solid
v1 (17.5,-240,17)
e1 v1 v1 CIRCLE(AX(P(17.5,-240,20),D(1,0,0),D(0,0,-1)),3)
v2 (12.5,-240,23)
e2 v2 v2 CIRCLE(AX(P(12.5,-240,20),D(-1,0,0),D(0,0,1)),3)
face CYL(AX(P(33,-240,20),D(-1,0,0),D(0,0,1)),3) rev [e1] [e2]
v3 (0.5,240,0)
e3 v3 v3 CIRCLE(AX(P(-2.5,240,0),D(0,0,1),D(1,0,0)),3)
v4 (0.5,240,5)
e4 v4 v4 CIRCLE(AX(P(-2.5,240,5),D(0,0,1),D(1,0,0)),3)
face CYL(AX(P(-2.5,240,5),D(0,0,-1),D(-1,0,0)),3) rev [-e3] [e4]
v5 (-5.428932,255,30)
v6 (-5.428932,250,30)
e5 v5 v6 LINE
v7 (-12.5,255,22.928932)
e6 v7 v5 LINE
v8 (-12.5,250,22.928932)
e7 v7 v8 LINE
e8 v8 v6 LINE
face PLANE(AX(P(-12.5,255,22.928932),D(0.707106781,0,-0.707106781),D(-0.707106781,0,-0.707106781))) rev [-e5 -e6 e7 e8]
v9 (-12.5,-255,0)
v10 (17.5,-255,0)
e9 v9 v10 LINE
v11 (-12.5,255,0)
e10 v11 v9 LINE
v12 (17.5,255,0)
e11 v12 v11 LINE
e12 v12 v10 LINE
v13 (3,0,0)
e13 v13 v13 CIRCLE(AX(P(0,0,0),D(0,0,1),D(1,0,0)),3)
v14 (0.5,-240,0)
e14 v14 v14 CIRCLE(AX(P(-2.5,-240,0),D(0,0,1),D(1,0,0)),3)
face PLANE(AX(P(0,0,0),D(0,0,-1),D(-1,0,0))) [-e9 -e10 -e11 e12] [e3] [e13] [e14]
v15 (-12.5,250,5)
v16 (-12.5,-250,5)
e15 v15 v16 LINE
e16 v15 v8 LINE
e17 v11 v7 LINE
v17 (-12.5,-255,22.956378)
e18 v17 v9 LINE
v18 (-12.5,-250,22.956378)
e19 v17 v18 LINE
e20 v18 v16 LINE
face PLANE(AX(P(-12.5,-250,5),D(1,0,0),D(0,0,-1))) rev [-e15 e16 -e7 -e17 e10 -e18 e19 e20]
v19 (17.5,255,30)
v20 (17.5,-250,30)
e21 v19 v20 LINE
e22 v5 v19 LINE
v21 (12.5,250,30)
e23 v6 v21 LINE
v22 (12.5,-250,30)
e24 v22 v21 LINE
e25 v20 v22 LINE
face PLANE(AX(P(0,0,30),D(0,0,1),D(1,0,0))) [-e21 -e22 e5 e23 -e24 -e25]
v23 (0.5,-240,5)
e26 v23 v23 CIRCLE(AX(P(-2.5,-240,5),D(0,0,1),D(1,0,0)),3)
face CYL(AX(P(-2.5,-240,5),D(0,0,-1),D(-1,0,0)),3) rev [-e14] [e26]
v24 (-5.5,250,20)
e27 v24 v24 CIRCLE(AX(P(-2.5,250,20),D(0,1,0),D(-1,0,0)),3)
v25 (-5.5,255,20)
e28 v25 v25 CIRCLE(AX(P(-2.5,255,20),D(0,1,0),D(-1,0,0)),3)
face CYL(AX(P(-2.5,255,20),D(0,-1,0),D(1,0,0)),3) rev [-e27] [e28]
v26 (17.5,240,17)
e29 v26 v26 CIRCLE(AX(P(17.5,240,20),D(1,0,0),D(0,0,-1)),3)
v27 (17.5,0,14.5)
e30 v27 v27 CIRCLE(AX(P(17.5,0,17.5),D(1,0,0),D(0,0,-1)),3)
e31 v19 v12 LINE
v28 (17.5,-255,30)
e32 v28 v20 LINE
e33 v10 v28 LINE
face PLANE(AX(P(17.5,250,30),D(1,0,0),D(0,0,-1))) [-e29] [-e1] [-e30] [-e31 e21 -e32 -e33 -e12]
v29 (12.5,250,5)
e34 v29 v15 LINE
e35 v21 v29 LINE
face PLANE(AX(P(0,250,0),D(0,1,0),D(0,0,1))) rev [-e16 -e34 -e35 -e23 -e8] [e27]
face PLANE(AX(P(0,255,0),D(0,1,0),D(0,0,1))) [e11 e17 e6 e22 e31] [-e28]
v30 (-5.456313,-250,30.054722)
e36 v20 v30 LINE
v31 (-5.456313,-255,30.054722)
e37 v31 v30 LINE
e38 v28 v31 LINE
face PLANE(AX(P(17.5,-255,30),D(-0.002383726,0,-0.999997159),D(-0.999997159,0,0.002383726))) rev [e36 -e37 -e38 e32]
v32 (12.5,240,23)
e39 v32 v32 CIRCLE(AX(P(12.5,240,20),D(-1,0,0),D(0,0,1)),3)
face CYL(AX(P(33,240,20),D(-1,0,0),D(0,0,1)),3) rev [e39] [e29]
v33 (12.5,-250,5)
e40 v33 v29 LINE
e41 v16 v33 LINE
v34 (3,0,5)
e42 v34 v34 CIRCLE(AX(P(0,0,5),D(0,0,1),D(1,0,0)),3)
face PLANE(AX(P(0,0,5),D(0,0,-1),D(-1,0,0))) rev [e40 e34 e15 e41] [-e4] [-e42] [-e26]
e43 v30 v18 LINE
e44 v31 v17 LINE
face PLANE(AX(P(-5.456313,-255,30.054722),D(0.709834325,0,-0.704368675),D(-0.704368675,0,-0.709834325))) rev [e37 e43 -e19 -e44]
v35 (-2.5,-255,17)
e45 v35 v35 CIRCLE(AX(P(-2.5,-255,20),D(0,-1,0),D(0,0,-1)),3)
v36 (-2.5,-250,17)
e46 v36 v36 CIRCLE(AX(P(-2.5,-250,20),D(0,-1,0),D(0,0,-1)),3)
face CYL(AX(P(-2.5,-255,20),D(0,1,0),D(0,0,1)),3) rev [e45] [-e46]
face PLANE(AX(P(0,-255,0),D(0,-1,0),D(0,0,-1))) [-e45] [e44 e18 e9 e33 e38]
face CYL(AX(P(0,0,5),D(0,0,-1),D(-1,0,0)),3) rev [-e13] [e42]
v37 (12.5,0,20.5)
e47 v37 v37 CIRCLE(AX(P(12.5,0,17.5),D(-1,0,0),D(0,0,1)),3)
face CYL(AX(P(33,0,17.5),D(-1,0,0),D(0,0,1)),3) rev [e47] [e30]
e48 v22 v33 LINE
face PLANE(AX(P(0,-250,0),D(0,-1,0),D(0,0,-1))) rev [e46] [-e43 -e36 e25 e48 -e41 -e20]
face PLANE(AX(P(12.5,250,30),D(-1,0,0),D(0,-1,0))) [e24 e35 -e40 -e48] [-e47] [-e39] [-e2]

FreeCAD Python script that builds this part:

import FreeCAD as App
import Part
import Sketcher

V = App.Vector


def add_polygon(sketch, points):
    """Adds a closed chain of lines whose ends are joined by coincident constraints."""
    first, n = sketch.GeometryCount, len(points)
    for a, b in zip(points, points[1:] + points[:1]):
        sketch.addGeometry(Part.LineSegment(App.Vector(*a, 0), App.Vector(*b, 0)), False)
    for i in range(n):
        sketch.addConstraint(Sketcher.Constraint("Coincident", first + i, 2, first + (i + 1) % n, 1))

doc = App.newDocument("Part")
body = doc.addObject("PartDesign::Body", "Body")

sketch1 = doc.addObject("Sketcher::SketchObject", "Sketch")
body.addObject(sketch1)
sketch1.AttachmentSupport = (doc.XY_Plane, [""])
sketch1.MapMode = "FlatFace"
add_polygon(sketch1, [(-12.5, 250), (-12.5, -250), (12.5, -250), (12.5, 250)])
sketch1.addGeometry(Part.Circle(V(-2.5, -240, 0), V(0, 0, 1), 3), False)
sketch1.addGeometry(Part.Circle(V(-2.5, 240, 0), V(0, 0, 1), 3), False)
sketch1.addGeometry(Part.Circle(V(0, 0, 0), V(0, 0, 1), 3), False)
sketch1.addConstraint(Sketcher.Constraint("Vertical", 0))
sketch1.addConstraint(Sketcher.Constraint("Horizontal", 1))
sketch1.addConstraint(Sketcher.Constraint("Vertical", 2))
sketch1.addConstraint(Sketcher.Constraint("Horizontal", 3))
sketch1.addConstraint(Sketcher.Constraint("Coincident", 6, 3, -1, 1))
sketch1.addConstraint(Sketcher.Constraint("Equal", 4, 5))
sketch1.addConstraint(Sketcher.Constraint("Equal", 5, 6))
sketch1.addConstraint(Sketcher.Constraint("Symmetric", 0, 2, 2, 2, -1, 1))
sketch1.addConstraint(Sketcher.Constraint("Symmetric", 4, 3, 5, 3, -1))
sketch1.addConstraint(Sketcher.Constraint("Diameter", 4, 6.0))
sketch1.addConstraint(Sketcher.Constraint("DistanceX", 1, 1, 1, 2, 25.0))
sketch1.addConstraint(Sketcher.Constraint("DistanceY", 0, 2, 0, 1, 500.0))
sketch1.addConstraint(Sketcher.Constraint("DistanceY", 4, 3, -1, 1, 240.0))
sketch1.addConstraint(Sketcher.Constraint("DistanceX", 0, 2, 4, 3, 10.0))
pad1 = doc.addObject("PartDesign::Pad", "Pad")
body.addObject(pad1)
pad1.Profile = sketch1
pad1.Length = 5

sketch2 = doc.addObject("Sketcher::SketchObject", "Sketch001")
body.addObject(sketch2)
sketch2.AttachmentSupport = (doc.XY_Plane, [""])
sketch2.MapMode = "FlatFace"
add_polygon(sketch2, [(18, 250), (18, -250), (12, -250), (12, 250)])
sketch2.addConstraint(Sketcher.Constraint("Vertical", 0))
sketch2.addConstraint(Sketcher.Constraint("Horizontal", 1))
sketch2.addConstraint(Sketcher.Constraint("Vertical", 2))
sketch2.addConstraint(Sketcher.Constraint("Horizontal", 3))
sketch2.addConstraint(Sketcher.Constraint("DistanceX", 1, 2, 1, 1, 5.0))
sketch2.addConstraint(Sketcher.Constraint("DistanceY", 0, 2, 0, 1, 500.0))
sketch2.addConstraint(Sketcher.Constraint("DistanceY", 0, 2, -1, 1, 250.0))
sketch2.addConstraint(Sketcher.Constraint("DistanceX", -1, 1, 0, 2, 17.5))
pad2 = doc.addObject("PartDesign::Pad", "Pad001")
body.addObject(pad2)
pad2.Profile = sketch2
pad2.Length = 30

sketch3 = doc.addObject("Sketcher::SketchObject", "Sketch002")
body.addObject(sketch3)
sketch3.AttachmentSupport = (doc.YZ_Plane, [""])
sketch3.MapMode = "FlatFace"
sketch3.AttachmentOffset = App.Placement(V(0, 0, 12.5), App.Rotation())
sketch3.addGeometry(Part.Circle(V(-240, 20, 0), V(0, 0, 1), 3), False)
sketch3.addGeometry(Part.Circle(V(0, 17.5, 0), V(0, 0, 1), 3), False)
sketch3.addGeometry(Part.Circle(V(240, 20, 0), V(0, 0, 1), 3), False)
sketch3.addConstraint(Sketcher.Constraint("Equal", 0, 1))
sketch3.addConstraint(Sketcher.Constraint("Equal", 1, 2))
sketch3.addConstraint(Sketcher.Constraint("Symmetric", 0, 3, 2, 3, -2))
sketch3.addConstraint(Sketcher.Constraint("PointOnObject", 1, 3, -2))
sketch3.addConstraint(Sketcher.Constraint("Diameter", 0, 6.0))
sketch3.addConstraint(Sketcher.Constraint("DistanceX", 0, 3, -1, 1, 240.0))
sketch3.addConstraint(Sketcher.Constraint("DistanceY", -1, 1, 0, 3, 20.0))
sketch3.addConstraint(Sketcher.Constraint("DistanceY", -1, 1, 1, 3, 17.5))
pocket1 = doc.addObject("PartDesign::Pocket", "Pocket")
body.addObject(pocket1)
pocket1.Profile = sketch3
pocket1.Length = 20.5
pocket1.Reversed = True

sketch4 = doc.addObject("Sketcher::SketchObject", "Sketch003")
body.addObject(sketch4)
sketch4.AttachmentSupport = (doc.XZ_Plane, [""])
sketch4.MapMode = "FlatFace"
sketch4.AttachmentOffset = App.Placement(V(0, 0, -250), App.Rotation())
add_polygon(sketch4, [(17.5, 0), (-12.5, 0), (-12.5, 22.9), (-5.4, 30), (17.5, 30)])
sketch4.addGeometry(Part.Circle(V(-2.5, 20, 0), V(0, 0, 1), 3), False)
sketch4.addConstraint(Sketcher.Constraint("Horizontal", 0))
sketch4.addConstraint(Sketcher.Constraint("Vertical", 1))
sketch4.addConstraint(Sketcher.Constraint("Horizontal", 3))
sketch4.addConstraint(Sketcher.Constraint("Vertical", 4))
sketch4.addConstraint(Sketcher.Constraint("PointOnObject", 0, 2, -1))
sketch4.addConstraint(Sketcher.Constraint("Equal", 3, 1))
sketch4.addConstraint(Sketcher.Constraint("Equal", 0, 4))
sketch4.addConstraint(Sketcher.Constraint("Diameter", 5, 6.0))
sketch4.addConstraint(Sketcher.Constraint("DistanceX", 0, 2, 0, 1, 30.0))
sketch4.addConstraint(Sketcher.Constraint("Distance", 2, 10.0))
sketch4.addConstraint(Sketcher.Constraint("DistanceY", -1, 1, 5, 3, 20.0))
sketch4.addConstraint(Sketcher.Constraint("DistanceX", 0, 2, 5, 3, 10.0))
sketch4.addConstraint(Sketcher.Constraint("DistanceX", 5, 3, -1, 1, 2.5))
pad3 = doc.addObject("PartDesign::Pad", "Pad002")
body.addObject(pad3)
pad3.Profile = sketch4
pad3.Length = 5
pad3.Reversed = True

sketch5 = doc.addObject("Sketcher::SketchObject", "Sketch004")
body.addObject(sketch5)
sketch5.AttachmentSupport = (doc.XZ_Plane, [""])
sketch5.MapMode = "FlatFace"
sketch5.AttachmentOffset = App.Placement(V(0, 0, 250), App.Rotation())
add_polygon(sketch5, [(-12.5, 0), (17.5, 0), (17.5, 30), (-5.5, 30.1), (-12.5, 23)])
sketch5.addGeometry(Part.Circle(V(-2.5, 20, 0), V(0, 0, 1), 3), False)
sketch5.addConstraint(Sketcher.Constraint("Horizontal", 0))
sketch5.addConstraint(Sketcher.Constraint("Vertical", 1))
sketch5.addConstraint(Sketcher.Constraint("Vertical", 4))
sketch5.addConstraint(Sketcher.Constraint("PointOnObject", 0, 2, -1))
sketch5.addConstraint(Sketcher.Constraint("Equal", 0, 1))
sketch5.addConstraint(Sketcher.Constraint("Diameter", 5, 6.0))
sketch5.addConstraint(Sketcher.Constraint("DistanceX", 0, 1, 0, 2, 30.0))
sketch5.addConstraint(Sketcher.Constraint("Distance", 3, 10.0))
sketch5.addConstraint(Sketcher.Constraint("DistanceY", -1, 1, 5, 3, 20.0))
sketch5.addConstraint(Sketcher.Constraint("DistanceX", 5, 3, 0, 2, 20.0))
sketch5.addConstraint(Sketcher.Constraint("DistanceX", 5, 3, -1, 1, 2.5))
sketch5.addConstraint(Sketcher.Constraint("DistanceY", 4, 2, 4, 1, 22.956378))
sketch5.addConstraint(Sketcher.Constraint("Distance", 2, 22.956378))
pad4 = doc.addObject("PartDesign::Pad", "Pad003")
body.addObject(pad4)
pad4.Profile = sketch5
pad4.Length = 5

doc.recompute()
